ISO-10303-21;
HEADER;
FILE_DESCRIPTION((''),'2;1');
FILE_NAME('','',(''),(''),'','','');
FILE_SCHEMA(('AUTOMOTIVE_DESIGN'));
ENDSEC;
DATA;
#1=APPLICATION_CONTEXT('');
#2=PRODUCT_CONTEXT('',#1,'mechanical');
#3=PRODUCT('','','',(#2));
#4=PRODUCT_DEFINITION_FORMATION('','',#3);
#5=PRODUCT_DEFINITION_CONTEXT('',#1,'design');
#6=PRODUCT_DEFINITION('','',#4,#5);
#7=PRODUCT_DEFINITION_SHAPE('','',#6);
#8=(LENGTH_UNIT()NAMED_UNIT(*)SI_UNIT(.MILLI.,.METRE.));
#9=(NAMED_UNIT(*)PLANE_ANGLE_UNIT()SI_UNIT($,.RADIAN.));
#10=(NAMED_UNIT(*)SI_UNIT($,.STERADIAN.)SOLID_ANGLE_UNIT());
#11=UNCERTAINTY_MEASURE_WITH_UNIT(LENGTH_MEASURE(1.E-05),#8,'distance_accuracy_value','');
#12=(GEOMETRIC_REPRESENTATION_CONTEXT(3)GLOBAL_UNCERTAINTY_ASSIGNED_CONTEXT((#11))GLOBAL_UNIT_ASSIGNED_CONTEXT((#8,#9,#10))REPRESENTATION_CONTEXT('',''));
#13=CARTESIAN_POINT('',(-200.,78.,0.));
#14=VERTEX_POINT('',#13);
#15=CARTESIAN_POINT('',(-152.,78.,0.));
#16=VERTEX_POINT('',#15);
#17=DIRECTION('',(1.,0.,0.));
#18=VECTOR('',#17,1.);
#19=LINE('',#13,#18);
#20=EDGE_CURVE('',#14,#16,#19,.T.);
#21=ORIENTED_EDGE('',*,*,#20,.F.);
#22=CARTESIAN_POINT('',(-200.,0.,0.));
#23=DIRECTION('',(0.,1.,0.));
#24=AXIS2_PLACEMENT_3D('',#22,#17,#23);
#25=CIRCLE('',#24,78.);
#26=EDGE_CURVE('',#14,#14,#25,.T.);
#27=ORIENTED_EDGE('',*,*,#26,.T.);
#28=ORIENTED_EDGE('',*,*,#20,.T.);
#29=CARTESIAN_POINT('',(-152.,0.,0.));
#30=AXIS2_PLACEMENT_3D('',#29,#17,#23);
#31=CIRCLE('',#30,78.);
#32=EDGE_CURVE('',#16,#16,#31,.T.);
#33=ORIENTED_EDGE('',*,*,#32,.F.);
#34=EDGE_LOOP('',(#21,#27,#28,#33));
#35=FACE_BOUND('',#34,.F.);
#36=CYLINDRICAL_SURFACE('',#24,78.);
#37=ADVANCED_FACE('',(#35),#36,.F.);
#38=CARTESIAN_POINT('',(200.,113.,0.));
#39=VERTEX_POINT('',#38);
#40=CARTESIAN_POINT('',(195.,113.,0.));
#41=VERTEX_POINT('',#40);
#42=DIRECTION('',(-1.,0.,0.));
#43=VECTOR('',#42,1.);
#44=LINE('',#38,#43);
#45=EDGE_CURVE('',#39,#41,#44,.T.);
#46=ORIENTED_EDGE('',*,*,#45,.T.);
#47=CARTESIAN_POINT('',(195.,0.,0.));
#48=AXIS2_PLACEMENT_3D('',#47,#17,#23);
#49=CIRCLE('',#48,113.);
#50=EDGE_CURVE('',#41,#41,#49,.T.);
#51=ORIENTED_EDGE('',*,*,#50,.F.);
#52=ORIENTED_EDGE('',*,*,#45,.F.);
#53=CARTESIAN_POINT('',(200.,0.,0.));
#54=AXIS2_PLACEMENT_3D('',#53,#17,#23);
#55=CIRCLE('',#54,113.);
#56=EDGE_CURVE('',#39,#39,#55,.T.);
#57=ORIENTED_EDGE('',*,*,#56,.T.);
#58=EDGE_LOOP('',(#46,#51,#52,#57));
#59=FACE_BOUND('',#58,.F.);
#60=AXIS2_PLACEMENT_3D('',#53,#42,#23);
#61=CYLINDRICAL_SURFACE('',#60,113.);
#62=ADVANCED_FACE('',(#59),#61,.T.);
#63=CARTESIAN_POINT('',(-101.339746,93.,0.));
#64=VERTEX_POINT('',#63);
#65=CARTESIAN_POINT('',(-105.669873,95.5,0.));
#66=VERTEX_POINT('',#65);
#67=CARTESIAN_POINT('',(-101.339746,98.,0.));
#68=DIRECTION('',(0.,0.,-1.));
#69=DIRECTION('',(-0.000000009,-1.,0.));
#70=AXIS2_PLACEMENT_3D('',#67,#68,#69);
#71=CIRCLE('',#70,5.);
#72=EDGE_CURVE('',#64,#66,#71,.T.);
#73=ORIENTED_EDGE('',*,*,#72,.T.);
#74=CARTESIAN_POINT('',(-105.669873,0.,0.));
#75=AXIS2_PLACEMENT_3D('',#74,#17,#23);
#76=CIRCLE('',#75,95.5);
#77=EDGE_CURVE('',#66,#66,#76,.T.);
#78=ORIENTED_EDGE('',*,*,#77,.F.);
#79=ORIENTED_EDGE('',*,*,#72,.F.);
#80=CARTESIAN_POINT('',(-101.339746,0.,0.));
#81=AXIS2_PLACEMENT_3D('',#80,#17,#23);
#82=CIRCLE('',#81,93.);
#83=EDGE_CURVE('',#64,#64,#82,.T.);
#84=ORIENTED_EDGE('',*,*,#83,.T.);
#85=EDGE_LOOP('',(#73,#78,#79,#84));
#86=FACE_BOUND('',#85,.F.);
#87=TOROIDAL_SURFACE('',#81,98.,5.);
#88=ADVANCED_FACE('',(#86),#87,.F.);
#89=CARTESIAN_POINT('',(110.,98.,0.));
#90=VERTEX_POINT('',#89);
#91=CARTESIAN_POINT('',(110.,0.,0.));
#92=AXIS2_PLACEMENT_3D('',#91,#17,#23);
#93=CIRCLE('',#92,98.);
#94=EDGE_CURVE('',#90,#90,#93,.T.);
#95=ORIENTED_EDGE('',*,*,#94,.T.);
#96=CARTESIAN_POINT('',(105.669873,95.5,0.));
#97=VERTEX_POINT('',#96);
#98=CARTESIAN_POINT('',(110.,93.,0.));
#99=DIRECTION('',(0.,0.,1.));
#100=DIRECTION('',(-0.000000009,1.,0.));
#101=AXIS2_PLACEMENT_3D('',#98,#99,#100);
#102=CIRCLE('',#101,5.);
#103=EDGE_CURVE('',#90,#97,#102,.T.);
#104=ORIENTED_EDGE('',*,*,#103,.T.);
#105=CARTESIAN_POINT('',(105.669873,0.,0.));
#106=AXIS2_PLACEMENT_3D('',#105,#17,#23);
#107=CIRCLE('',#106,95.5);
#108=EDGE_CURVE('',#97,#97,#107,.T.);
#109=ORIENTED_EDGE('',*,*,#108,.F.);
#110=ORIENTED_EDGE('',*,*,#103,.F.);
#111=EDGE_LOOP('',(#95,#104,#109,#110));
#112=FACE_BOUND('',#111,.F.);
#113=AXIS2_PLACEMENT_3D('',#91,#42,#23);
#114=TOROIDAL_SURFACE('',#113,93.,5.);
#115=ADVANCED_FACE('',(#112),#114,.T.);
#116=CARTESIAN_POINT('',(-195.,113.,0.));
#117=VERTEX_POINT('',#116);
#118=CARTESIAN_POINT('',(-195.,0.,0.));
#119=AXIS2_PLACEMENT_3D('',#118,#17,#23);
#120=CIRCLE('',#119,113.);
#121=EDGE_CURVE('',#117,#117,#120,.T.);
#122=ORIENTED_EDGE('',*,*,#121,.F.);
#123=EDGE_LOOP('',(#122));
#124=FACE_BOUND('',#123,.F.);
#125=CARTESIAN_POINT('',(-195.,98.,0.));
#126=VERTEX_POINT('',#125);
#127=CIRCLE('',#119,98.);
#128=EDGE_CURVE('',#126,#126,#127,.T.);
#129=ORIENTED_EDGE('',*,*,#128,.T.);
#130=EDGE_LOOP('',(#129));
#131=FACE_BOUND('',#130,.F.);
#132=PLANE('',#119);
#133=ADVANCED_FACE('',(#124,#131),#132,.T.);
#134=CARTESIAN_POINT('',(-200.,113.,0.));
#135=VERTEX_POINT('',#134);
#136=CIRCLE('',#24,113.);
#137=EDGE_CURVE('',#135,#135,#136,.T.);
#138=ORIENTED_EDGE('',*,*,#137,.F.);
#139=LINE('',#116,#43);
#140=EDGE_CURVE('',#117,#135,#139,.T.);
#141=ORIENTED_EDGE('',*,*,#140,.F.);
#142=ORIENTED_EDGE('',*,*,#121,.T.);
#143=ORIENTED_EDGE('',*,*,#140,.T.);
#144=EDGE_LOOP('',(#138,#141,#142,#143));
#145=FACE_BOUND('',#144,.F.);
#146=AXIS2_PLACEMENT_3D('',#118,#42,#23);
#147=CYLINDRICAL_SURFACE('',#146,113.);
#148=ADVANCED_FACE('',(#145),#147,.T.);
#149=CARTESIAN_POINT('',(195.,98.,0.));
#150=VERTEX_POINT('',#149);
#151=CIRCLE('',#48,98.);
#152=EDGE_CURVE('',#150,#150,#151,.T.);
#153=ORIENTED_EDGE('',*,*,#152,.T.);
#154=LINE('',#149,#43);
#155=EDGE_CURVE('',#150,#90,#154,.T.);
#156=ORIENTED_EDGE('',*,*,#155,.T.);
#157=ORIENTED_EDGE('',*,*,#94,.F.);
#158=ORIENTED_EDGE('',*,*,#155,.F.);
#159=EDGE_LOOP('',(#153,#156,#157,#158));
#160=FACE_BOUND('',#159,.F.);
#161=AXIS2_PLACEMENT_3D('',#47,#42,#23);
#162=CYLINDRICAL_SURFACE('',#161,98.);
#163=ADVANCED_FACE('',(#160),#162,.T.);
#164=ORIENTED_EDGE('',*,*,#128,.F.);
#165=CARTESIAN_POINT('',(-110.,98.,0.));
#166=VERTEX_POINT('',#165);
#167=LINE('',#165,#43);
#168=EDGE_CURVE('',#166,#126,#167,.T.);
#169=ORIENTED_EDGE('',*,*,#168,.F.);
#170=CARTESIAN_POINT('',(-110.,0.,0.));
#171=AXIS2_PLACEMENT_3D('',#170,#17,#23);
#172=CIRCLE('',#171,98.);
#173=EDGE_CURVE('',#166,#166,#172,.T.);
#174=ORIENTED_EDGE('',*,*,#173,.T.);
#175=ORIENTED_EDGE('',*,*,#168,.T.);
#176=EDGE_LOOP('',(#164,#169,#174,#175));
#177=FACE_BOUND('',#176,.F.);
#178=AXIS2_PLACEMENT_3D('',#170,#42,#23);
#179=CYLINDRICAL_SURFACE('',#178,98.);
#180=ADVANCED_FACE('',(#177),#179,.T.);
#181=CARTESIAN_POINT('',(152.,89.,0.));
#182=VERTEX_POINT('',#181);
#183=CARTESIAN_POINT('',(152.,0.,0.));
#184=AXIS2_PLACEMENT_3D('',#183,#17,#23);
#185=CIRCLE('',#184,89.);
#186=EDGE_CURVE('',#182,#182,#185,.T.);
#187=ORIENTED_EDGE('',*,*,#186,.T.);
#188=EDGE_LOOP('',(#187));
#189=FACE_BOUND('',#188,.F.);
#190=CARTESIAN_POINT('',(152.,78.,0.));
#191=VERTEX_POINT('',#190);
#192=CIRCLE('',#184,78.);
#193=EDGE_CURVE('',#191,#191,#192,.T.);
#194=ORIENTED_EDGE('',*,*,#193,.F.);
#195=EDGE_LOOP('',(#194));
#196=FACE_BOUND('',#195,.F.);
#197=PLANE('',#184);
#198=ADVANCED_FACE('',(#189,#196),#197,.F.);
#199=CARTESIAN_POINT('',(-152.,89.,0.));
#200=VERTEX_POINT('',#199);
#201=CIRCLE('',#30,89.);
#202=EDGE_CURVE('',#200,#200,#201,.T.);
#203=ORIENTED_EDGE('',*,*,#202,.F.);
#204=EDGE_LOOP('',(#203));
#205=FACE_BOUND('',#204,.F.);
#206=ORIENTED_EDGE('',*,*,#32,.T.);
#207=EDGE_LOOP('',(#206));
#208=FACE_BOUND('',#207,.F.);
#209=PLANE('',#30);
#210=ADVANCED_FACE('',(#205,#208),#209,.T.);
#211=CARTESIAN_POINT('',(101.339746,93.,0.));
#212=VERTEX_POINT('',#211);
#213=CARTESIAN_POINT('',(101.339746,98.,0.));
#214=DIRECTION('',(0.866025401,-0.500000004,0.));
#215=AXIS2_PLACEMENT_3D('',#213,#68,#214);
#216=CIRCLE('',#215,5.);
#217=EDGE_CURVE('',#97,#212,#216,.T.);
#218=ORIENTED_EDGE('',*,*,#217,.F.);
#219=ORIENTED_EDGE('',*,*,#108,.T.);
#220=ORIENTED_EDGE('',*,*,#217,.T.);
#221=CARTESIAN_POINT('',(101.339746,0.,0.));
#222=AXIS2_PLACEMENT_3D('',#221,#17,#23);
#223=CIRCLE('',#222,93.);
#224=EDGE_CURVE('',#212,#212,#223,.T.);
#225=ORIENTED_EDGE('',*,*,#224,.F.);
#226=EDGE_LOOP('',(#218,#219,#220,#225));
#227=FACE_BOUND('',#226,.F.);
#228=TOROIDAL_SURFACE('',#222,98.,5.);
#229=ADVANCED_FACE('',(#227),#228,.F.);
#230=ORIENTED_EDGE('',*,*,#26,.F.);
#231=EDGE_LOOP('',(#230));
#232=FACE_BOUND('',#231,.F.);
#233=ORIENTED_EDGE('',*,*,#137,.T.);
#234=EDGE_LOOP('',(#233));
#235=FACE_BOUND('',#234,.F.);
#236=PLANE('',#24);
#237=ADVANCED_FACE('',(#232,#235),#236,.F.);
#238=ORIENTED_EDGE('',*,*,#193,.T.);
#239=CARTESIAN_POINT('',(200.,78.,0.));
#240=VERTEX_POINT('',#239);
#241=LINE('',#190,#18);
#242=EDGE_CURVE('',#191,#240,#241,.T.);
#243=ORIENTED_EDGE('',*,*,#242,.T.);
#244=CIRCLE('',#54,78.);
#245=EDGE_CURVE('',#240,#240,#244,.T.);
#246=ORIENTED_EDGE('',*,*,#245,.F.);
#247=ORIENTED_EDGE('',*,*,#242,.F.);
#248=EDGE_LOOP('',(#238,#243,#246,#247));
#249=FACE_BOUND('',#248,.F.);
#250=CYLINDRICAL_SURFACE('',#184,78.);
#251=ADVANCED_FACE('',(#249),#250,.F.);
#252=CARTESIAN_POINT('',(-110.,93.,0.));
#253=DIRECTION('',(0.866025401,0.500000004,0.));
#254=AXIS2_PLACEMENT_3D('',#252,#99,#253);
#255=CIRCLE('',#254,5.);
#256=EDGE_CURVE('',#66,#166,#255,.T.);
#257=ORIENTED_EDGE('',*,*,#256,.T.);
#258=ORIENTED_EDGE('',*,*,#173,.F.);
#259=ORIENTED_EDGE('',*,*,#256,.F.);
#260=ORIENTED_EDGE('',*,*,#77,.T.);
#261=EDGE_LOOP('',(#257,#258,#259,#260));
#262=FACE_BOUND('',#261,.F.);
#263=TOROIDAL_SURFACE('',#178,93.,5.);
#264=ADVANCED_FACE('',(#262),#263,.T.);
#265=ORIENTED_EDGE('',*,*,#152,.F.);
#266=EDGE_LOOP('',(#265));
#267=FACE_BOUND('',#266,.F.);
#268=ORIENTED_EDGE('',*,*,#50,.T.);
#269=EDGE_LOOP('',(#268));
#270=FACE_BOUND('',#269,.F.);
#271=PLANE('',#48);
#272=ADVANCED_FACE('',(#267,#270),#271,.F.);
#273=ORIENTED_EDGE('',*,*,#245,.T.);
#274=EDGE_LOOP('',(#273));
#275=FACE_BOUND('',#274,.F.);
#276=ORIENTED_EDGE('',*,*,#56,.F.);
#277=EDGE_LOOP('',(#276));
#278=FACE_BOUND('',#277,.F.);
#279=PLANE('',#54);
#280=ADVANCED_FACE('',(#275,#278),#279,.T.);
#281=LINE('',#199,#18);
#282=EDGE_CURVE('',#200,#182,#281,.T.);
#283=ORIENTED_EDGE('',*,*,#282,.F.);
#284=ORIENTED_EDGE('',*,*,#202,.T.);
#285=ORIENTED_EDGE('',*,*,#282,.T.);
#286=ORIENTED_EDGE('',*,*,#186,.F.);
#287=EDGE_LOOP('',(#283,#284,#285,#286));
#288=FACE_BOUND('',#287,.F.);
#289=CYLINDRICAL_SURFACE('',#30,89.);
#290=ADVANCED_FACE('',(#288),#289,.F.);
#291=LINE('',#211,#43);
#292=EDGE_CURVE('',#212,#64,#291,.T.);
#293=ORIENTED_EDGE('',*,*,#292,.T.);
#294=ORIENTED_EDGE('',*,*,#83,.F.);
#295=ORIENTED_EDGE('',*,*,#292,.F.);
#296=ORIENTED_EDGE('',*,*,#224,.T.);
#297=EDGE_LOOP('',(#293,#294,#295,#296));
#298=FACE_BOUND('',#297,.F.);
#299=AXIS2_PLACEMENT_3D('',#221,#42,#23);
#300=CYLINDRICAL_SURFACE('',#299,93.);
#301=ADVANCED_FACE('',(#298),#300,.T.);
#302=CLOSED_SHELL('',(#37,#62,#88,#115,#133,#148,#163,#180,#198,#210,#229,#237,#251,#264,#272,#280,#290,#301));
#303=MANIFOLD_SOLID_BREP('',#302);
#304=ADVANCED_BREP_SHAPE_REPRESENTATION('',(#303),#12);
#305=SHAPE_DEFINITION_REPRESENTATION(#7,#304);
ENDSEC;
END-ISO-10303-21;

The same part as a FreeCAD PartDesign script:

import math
import FreeCAD as App
import Part
import Sketcher
Q = App.Units.Quantity

doc = App.newDocument("Part")
body = doc.addObject("PartDesign::Body", "Body")

# Sketch on XY plane
sketch1 = doc.addObject("Sketcher::SketchObject", "Sketch")
body.addObject(sketch1)
sketch1.AttachmentSupport = (doc.XY_Plane, [""])
sketch1.MapMode = "FlatFace"
sketch1.addGeometry([
    Part.ArcOfCircle(Part.Circle(App.Vector(-110, 93, 0), App.Vector(0, 0, 1), 5), math.radians(30), math.radians(89.999999)),  # 0
    Part.LineSegment(App.Vector(-110, 98, 0), App.Vector(-195, 98, 0)),  # 1
    Part.LineSegment(App.Vector(-195, 98, 0), App.Vector(-195, 113, 0)),  # 2
    Part.LineSegment(App.Vector(-195, 113, 0), App.Vector(-200, 113, 0)),  # 3
    Part.LineSegment(App.Vector(-200, 113, 0), App.Vector(-200, 78, 0)),  # 4
    Part.LineSegment(App.Vector(-200, 78, 0), App.Vector(-152, 78, 0)),  # 5
    Part.LineSegment(App.Vector(-152, 78, 0), App.Vector(-152, 89, 0)),  # 6
    Part.LineSegment(App.Vector(-152, 89, 0), App.Vector(152, 89, 0)),  # 7
    Part.LineSegment(App.Vector(152, 89, 0), App.Vector(152, 78, 0)),  # 8
    Part.LineSegment(App.Vector(152, 78, 0), App.Vector(200, 78, 0)),  # 9
    Part.LineSegment(App.Vector(200, 78, 0), App.Vector(200, 113, 0)),  # 10
    Part.LineSegment(App.Vector(200, 113, 0), App.Vector(195, 113, 0)),  # 11
    Part.LineSegment(App.Vector(195, 113, 0), App.Vector(195, 98, 0)),  # 12
    Part.LineSegment(App.Vector(195, 98, 0), App.Vector(110, 98, 0)),  # 13
    Part.ArcOfCircle(Part.Circle(App.Vector(110, 93, 0), App.Vector(0, 0, 1), 5), math.radians(90.000001), math.radians(150)),  # 14
    Part.ArcOfCircle(Part.Circle(App.Vector(101.339746, 98, 0), App.Vector(0, 0, 1), 5), math.radians(-89.999999), math.radians(-30)),  # 15
    Part.LineSegment(App.Vector(101.339746, 93, 0), App.Vector(-101.339746, 93, 0)),  # 16
    Part.ArcOfCircle(Part.Circle(App.Vector(-101.339746, 98, 0), App.Vector(0, 0, 1), 5), math.radians(-150), math.radians(-90.000001)),  # 17
], False)
sketch1.addConstraint([
    Sketcher.Constraint("Tangent", 0, 2, 1, 1),
    Sketcher.Constraint("Coincident", 1, 2, 2, 1),
    Sketcher.Constraint("Coincident", 2, 2, 3, 1),
    Sketcher.Constraint("Coincident", 3, 2, 4, 1),
    Sketcher.Constraint("Coincident", 4, 2, 5, 1),
    Sketcher.Constraint("Coincident", 5, 2, 6, 1),
    Sketcher.Constraint("Coincident", 6, 2, 7, 1),
    Sketcher.Constraint("Coincident", 7, 2, 8, 1),
    Sketcher.Constraint("Coincident", 8, 2, 9, 1),
    Sketcher.Constraint("Coincident", 9, 2, 10, 1),
    Sketcher.Constraint("Coincident", 10, 2, 11, 1),
    Sketcher.Constraint("Coincident", 11, 2, 12, 1),
    Sketcher.Constraint("Coincident", 12, 2, 13, 1),
    Sketcher.Constraint("Tangent", 13, 2, 14, 1),
    Sketcher.Constraint("Tangent", 14, 2, 15, 2),
    Sketcher.Constraint("Tangent", 15, 1, 16, 1),
    Sketcher.Constraint("Tangent", 16, 2, 17, 2),
    Sketcher.Constraint("Tangent", 17, 1, 0, 1),
    Sketcher.Constraint("Horizontal", 1),
    Sketcher.Constraint("Vertical", 2),
    Sketcher.Constraint("Horizontal", 3),
    Sketcher.Constraint("Vertical", 4),
    Sketcher.Constraint("Horizontal", 5),
    Sketcher.Constraint("Vertical", 6),
    Sketcher.Constraint("Horizontal", 7),
    Sketcher.Constraint("Vertical", 8),
    Sketcher.Constraint("Horizontal", 9),
    Sketcher.Constraint("Vertical", 10),
    Sketcher.Constraint("Horizontal", 11),
    Sketcher.Constraint("Vertical", 12),
    Sketcher.Constraint("Horizontal", 13),
    Sketcher.Constraint("Horizontal", 16),
    Sketcher.Constraint("Equal", 0, 14),
    Sketcher.Constraint("Equal", 14, 15),
    Sketcher.Constraint("Equal", 15, 17),
    Sketcher.Constraint("Symmetric", 0, 3, 14, 3, -2),
    Sketcher.Constraint("Symmetric", 5, 2, 8, 2, -2),
    Sketcher.Constraint("Symmetric", 3, 2, 10, 2, -2),
    Sketcher.Constraint("Horizontal", 17, 3, 0, 2),
    Sketcher.Constraint("Equal", 3, 11),
    Sketcher.Constraint("Radius", 0, Q("5 mm")),
    Sketcher.Constraint("DistanceX", 1, 2, 1, 1, Q("85 mm")),
    Sketcher.Constraint("DistanceX", 3, 2, 3, 1, Q("5 mm")),
    Sketcher.Constraint("DistanceX", 5, 1, 5, 2, Q("48 mm")),
    Sketcher.Constraint("DistanceX", 7, 1, 7, 2, Q("304 mm")),
    Sketcher.Constraint("DistanceY", 2, 1, 2, 2, Q("15 mm")),
    Sketcher.Constraint("DistanceY", 4, 2, 4, 1, Q("35 mm")),
    Sketcher.Constraint("DistanceY", 6, 1, 6, 2, Q("11 mm")),
    Sketcher.Constraint("DistanceY", -1, 1, 0, 3, Q("93 mm")),
])
revolution = doc.addObject("PartDesign::Revolution", "Revolution")
body.addObject(revolution)
revolution.Profile = sketch1
revolution.ReferenceAxis = (sketch1, ["H_Axis"])
revolution.Angle = 360

doc.recompute()
